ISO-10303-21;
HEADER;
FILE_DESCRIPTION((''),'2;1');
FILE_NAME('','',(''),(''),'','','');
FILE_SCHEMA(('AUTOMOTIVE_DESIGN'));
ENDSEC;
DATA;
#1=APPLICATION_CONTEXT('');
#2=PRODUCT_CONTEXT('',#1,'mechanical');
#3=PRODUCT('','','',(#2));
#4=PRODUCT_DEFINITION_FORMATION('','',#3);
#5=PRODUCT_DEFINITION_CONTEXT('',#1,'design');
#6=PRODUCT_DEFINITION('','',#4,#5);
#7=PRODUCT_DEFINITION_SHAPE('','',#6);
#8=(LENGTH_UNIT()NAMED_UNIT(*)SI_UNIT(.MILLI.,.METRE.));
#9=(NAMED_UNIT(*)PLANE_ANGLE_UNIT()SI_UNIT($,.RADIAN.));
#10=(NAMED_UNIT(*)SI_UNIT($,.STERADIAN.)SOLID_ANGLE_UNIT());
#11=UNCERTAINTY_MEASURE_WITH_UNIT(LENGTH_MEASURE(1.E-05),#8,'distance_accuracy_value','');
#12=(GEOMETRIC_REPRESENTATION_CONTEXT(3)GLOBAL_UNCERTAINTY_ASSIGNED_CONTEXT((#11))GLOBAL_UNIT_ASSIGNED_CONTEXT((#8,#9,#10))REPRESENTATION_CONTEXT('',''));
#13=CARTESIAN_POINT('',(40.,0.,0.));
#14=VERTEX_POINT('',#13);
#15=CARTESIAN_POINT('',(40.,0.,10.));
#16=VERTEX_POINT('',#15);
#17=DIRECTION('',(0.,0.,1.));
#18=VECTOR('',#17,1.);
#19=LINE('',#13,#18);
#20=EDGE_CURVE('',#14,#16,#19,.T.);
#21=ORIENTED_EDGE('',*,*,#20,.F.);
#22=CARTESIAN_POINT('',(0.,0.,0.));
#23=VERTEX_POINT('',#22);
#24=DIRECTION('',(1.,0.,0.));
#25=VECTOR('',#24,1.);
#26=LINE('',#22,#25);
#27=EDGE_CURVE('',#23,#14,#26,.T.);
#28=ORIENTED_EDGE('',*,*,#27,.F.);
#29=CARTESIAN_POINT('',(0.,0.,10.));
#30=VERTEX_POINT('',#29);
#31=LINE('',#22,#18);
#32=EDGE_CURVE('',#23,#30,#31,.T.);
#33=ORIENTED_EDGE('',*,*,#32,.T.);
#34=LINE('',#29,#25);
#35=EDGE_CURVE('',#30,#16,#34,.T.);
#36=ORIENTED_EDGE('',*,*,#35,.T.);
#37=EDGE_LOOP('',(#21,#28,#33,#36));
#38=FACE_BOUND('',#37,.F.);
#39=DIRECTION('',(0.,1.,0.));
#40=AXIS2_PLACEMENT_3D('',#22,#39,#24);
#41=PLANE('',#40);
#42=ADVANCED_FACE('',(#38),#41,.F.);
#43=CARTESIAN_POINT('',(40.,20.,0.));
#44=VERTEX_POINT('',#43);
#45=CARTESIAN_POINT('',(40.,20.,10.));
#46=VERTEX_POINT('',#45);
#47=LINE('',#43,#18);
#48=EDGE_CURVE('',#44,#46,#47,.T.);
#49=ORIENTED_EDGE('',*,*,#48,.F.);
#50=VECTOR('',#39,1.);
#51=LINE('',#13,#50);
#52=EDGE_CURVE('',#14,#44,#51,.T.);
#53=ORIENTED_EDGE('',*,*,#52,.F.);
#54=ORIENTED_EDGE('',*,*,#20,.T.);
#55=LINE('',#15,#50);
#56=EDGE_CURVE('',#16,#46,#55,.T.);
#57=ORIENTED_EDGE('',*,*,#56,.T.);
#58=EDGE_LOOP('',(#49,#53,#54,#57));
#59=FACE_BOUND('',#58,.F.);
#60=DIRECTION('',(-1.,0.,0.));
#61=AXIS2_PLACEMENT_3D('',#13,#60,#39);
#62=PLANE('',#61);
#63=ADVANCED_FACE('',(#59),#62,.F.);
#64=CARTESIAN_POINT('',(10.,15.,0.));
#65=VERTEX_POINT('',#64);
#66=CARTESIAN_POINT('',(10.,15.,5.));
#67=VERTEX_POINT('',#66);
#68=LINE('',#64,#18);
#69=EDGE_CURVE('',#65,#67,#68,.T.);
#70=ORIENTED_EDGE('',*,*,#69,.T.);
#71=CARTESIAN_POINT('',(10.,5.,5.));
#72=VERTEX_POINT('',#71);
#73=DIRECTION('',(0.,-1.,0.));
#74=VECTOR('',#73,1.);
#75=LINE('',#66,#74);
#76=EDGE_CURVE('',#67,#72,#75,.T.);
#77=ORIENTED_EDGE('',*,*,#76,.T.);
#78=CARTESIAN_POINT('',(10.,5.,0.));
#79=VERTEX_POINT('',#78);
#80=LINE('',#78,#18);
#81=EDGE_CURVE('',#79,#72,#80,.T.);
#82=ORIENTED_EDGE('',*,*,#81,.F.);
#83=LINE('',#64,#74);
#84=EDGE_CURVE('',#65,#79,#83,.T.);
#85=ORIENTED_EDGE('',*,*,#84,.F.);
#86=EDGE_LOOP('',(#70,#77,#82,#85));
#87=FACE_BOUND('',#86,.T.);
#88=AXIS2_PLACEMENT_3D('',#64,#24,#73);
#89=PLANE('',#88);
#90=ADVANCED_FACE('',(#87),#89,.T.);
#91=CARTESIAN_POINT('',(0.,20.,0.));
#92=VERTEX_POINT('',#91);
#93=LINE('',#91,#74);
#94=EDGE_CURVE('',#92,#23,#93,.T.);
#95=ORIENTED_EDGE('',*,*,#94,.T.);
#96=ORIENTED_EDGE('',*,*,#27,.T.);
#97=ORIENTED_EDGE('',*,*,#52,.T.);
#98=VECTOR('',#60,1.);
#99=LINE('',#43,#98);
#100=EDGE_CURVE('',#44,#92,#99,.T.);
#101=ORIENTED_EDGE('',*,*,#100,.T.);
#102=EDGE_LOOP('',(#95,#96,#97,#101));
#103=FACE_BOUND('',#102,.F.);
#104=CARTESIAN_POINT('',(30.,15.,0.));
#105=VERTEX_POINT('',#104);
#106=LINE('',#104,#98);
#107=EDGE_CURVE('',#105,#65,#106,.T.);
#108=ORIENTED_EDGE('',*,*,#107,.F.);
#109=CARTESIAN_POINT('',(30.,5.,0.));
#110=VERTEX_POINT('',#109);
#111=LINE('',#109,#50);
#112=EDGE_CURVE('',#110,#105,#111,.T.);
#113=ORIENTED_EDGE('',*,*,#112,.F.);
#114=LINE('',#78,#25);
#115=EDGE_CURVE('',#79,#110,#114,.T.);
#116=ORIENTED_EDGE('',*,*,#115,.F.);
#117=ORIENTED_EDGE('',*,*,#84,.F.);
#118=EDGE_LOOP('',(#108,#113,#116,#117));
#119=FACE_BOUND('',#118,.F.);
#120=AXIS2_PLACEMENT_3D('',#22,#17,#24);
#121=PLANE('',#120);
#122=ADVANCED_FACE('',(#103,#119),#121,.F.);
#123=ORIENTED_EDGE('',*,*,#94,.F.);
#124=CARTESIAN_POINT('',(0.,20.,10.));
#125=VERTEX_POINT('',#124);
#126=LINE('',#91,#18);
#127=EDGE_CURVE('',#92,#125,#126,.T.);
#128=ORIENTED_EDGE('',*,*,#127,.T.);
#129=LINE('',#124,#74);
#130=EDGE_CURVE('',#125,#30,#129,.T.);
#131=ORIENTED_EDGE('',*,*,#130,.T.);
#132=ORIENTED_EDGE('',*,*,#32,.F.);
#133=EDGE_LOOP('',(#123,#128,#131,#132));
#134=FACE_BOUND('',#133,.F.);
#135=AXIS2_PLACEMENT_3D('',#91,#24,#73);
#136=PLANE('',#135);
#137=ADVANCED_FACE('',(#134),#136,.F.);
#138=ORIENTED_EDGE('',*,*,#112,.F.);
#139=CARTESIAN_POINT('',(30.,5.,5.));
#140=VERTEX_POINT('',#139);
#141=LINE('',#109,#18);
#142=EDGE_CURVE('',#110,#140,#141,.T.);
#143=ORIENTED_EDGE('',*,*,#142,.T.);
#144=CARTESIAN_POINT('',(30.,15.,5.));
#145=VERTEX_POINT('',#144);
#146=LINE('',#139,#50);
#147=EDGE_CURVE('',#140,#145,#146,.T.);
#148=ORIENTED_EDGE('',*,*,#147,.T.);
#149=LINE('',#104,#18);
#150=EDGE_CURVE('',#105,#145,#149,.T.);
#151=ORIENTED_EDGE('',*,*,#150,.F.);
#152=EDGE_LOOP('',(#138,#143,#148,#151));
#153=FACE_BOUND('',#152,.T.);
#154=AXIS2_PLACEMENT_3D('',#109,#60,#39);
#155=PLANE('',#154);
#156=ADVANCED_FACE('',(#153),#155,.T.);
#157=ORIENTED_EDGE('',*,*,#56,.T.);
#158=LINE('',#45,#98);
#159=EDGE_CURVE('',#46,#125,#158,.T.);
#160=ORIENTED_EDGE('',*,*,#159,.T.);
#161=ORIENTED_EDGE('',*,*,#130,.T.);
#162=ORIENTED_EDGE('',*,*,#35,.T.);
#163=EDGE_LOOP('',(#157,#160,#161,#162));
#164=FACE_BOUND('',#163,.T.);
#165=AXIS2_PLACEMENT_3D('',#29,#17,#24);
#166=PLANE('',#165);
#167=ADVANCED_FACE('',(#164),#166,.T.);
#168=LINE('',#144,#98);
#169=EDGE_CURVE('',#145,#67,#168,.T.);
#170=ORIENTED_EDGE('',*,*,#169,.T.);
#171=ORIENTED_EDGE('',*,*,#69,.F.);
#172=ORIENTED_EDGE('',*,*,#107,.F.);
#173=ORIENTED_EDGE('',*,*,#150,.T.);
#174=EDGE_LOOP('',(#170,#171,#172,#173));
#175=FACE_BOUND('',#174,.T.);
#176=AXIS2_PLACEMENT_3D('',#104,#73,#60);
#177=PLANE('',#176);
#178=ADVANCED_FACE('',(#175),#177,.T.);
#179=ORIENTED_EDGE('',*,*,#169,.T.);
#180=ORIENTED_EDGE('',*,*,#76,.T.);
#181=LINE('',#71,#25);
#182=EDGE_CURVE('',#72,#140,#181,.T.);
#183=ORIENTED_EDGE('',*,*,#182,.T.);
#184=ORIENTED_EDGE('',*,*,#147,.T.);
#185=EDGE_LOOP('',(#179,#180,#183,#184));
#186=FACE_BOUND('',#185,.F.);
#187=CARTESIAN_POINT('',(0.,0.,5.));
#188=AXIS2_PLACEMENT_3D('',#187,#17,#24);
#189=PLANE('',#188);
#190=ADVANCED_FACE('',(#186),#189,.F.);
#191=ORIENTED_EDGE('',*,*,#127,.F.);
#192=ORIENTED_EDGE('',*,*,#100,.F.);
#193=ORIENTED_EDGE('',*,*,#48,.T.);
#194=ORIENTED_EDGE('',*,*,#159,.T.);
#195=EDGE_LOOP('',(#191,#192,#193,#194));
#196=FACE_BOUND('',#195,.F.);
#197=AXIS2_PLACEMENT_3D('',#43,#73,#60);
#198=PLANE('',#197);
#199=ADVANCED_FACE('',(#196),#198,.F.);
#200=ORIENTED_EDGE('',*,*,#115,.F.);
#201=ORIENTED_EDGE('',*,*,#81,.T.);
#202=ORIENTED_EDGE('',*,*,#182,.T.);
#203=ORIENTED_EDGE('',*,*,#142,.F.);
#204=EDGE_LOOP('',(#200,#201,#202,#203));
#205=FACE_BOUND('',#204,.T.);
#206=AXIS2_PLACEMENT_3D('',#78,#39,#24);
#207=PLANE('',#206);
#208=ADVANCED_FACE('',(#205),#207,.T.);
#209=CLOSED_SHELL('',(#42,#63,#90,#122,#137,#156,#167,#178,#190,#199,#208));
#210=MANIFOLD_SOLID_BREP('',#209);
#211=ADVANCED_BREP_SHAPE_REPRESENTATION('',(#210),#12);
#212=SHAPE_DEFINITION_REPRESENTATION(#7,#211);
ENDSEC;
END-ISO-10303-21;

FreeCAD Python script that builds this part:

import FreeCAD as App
import Part
import Sketcher
from FreeCAD import Vector


def add_polygon(sketch, points):
    """Adds a closed chain of lines whose ends are joined by coincident constraints."""
    first, n = sketch.GeometryCount, len(points)
    for a, b in zip(points, points[1:] + points[:1]):
        sketch.addGeometry(Part.LineSegment(App.Vector(*a, 0), App.Vector(*b, 0)), False)
    for i in range(n):
        sketch.addConstraint(Sketcher.Constraint("Coincident", first + i, 2, first + (i + 1) % n, 1))

doc = App.newDocument("Part")
body = doc.addObject("PartDesign::Body", "Body")

sketch1 = doc.addObject("Sketcher::SketchObject", "Sketch")
body.addObject(sketch1)
sketch1.AttachmentSupport = (doc.XY_Plane, [""])
sketch1.MapMode = "FlatFace"
add_polygon(sketch1, [(0, 20), (0, 0), (40, 0), (40, 20)])
sketch1.addConstraint(Sketcher.Constraint("Vertical", 0))
sketch1.addConstraint(Sketcher.Constraint("Horizontal", 1))
sketch1.addConstraint(Sketcher.Constraint("Vertical", 2))
sketch1.addConstraint(Sketcher.Constraint("Horizontal", 3))
sketch1.addConstraint(Sketcher.Constraint("Coincident", 0, 2, -1, 1))
sketch1.addConstraint(Sketcher.Constraint("DistanceX", 1, 1, 1, 2, 40.0))
sketch1.addConstraint(Sketcher.Constraint("DistanceY", 0, 2, 0, 1, 20.0))
pad1 = doc.addObject("PartDesign::Pad", "Pad")
body.addObject(pad1)
pad1.Profile = sketch1
pad1.Length = 10

sketch2 = doc.addObject("Sketcher::SketchObject", "Sketch001")
body.addObject(sketch2)
sketch2.AttachmentSupport = (doc.XY_Plane, [""])
sketch2.MapMode = "FlatFace"
add_polygon(sketch2, [(10, 15), (10, 5), (30, 5), (30, 15)])
sketch2.addConstraint(Sketcher.Constraint("Vertical", 0))
sketch2.addConstraint(Sketcher.Constraint("Horizontal", 1))
sketch2.addConstraint(Sketcher.Constraint("Vertical", 2))
sketch2.addConstraint(Sketcher.Constraint("Horizontal", 3))
sketch2.addConstraint(Sketcher.Constraint("DistanceX", 1, 1, 1, 2, 20.0))
sketch2.addConstraint(Sketcher.Constraint("DistanceY", 0, 2, 0, 1, 10.0))
sketch2.addConstraint(Sketcher.Constraint("DistanceX", -1, 1, 0, 2, 10.0))
sketch2.addConstraint(Sketcher.Constraint("DistanceY", -1, 1, 0, 2, 5.0))
pocket1 = doc.addObject("PartDesign::Pocket", "Pocket")
body.addObject(pocket1)
pocket1.Profile = sketch2
pocket1.Length = 5
pocket1.Reversed = True

doc.recompute()
